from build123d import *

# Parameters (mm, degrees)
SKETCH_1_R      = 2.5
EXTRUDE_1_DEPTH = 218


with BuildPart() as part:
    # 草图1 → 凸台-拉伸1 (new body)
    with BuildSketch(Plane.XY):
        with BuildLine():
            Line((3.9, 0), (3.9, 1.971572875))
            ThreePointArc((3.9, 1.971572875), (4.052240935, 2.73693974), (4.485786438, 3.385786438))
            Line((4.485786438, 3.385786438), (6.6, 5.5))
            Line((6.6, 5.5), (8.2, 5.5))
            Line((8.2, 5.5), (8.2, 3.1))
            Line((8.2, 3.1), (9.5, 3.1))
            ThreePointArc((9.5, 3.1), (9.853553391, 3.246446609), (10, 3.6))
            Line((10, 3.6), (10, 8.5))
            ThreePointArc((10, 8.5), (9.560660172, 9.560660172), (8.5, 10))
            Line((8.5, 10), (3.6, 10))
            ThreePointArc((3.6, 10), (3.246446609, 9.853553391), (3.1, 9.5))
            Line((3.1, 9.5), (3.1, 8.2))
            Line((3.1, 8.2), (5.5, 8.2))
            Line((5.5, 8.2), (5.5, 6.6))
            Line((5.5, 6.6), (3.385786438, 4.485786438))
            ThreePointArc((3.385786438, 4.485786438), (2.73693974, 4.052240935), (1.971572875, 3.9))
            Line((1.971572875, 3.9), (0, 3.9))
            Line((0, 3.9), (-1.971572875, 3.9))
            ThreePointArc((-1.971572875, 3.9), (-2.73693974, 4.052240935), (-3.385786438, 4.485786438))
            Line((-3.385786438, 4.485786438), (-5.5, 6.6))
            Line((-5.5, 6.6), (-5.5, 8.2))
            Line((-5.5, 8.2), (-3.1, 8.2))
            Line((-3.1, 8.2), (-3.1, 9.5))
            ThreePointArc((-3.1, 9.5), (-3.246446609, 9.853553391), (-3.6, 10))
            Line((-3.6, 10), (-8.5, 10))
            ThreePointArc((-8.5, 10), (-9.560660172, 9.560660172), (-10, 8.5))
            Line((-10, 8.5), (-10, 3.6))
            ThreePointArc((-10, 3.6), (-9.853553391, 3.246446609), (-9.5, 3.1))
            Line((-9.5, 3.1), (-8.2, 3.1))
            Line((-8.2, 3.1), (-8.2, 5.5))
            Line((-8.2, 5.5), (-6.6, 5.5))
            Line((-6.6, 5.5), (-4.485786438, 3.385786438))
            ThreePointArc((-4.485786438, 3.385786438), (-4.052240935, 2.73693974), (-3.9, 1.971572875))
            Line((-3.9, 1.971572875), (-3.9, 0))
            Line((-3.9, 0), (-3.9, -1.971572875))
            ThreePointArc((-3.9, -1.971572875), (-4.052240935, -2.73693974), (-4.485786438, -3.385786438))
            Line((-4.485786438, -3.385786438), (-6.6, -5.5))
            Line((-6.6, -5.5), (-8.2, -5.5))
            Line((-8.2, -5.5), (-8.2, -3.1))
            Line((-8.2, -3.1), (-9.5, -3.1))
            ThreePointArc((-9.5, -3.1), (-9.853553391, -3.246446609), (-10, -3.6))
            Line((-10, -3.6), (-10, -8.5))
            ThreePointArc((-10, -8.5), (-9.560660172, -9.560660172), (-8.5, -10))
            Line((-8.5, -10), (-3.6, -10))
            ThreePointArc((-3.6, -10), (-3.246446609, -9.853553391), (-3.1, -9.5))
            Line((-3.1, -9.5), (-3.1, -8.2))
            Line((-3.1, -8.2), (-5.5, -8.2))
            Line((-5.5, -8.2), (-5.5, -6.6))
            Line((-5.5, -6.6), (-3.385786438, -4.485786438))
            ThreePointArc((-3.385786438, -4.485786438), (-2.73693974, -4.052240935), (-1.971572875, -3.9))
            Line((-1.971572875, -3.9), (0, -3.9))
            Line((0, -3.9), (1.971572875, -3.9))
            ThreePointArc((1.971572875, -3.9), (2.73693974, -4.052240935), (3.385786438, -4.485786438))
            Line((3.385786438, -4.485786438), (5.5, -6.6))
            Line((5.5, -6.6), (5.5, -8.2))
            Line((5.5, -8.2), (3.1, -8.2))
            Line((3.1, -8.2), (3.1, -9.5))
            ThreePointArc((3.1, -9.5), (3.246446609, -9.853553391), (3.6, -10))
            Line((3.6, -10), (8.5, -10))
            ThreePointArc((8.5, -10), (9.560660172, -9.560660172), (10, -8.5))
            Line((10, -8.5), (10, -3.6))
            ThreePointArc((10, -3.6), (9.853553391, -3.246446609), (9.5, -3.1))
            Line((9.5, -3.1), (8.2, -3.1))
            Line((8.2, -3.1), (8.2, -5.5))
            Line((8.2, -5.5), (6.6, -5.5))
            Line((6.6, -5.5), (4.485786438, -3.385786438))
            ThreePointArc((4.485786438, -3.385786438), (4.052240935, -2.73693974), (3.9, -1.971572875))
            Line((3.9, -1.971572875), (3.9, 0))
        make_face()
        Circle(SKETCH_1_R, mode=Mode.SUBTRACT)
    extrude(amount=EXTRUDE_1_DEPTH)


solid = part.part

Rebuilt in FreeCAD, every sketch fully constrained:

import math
import FreeCAD as App
import Part
import Sketcher

V = App.Vector
Q = App.Units.Quantity

doc = App.newDocument("Part")
body = doc.addObject("PartDesign::Body", "Body")

# Sketch on XY plane
sketch1 = doc.addObject("Sketcher::SketchObject", "Sketch")
body.addObject(sketch1)
sketch1.AttachmentSupport = (doc.XY_Plane, [""])
sketch1.MapMode = "FlatFace"
sketch1.addGeometry(Part.ArcOfCircle(Part.Circle(V(5.9, 1.971573, 0), V(0, 0, 1), 2), math.radians(135), math.radians(180)), False)
sketch1.addGeometry(Part.LineSegment(V(4.485786, 3.385786, 0), V(6.6, 5.5, 0)), False)
sketch1.addGeometry(Part.LineSegment(V(6.6, 5.5, 0), V(8.2, 5.5, 0)), False)
sketch1.addGeometry(Part.LineSegment(V(8.2, 5.5, 0), V(8.2, 3.1, 0)), False)
sketch1.addGeometry(Part.LineSegment(V(8.2, 3.1, 0), V(9.5, 3.1, 0)), False)
sketch1.addGeometry(Part.ArcOfCircle(Part.Circle(V(9.5, 3.6, 0), V(0, 0, 1), 0.5), math.radians(-90), math.radians(0)), False)
sketch1.addGeometry(Part.LineSegment(V(10, 3.6, 0), V(10, 8.5, 0)), False)
sketch1.addGeometry(Part.ArcOfCircle(Part.Circle(V(8.5, 8.5, 0), V(0, 0, 1), 1.5), math.radians(0), math.radians(90)), False)
sketch1.addGeometry(Part.LineSegment(V(8.5, 10, 0), V(3.6, 10, 0)), False)
sketch1.addGeometry(Part.ArcOfCircle(Part.Circle(V(3.6, 9.5, 0), V(0, 0, 1), 0.5), math.radians(90), math.radians(180)), False)
sketch1.addGeometry(Part.LineSegment(V(3.1, 9.5, 0), V(3.1, 8.2, 0)), False)
sketch1.addGeometry(Part.LineSegment(V(3.1, 8.2, 0), V(5.5, 8.2, 0)), False)
sketch1.addGeometry(Part.LineSegment(V(5.5, 8.2, 0), V(5.5, 6.6, 0)), False)
sketch1.addGeometry(Part.LineSegment(V(5.5, 6.6, 0), V(3.385786, 4.485786, 0)), False)
sketch1.addGeometry(Part.ArcOfCircle(Part.Circle(V(1.971573, 5.9, 0), V(0, 0, 1), 2), math.radians(-90), math.radians(-45)), False)
sketch1.addGeometry(Part.LineSegment(V(1.971573, 3.9, 0), V(-1.971573, 3.9, 0)), False)
sketch1.addGeometry(Part.ArcOfCircle(Part.Circle(V(-1.971573, 5.9, 0), V(0, 0, 1), 2), math.radians(-135), math.radians(-90)), False)
sketch1.addGeometry(Part.LineSegment(V(-3.385786, 4.485786, 0), V(-5.5, 6.6, 0)), False)
sketch1.addGeometry(Part.LineSegment(V(-5.5, 6.6, 0), V(-5.5, 8.2, 0)), False)
sketch1.addGeometry(Part.LineSegment(V(-5.5, 8.2, 0), V(-3.1, 8.2, 0)), False)
sketch1.addGeometry(Part.LineSegment(V(-3.1, 8.2, 0), V(-3.1, 9.5, 0)), False)
sketch1.addGeometry(Part.ArcOfCircle(Part.Circle(V(-3.6, 9.5, 0), V(0, 0, 1), 0.5), math.radians(0), math.radians(90)), False)
sketch1.addGeometry(Part.LineSegment(V(-3.6, 10, 0), V(-8.5, 10, 0)), False)
sketch1.addGeometry(Part.ArcOfCircle(Part.Circle(V(-8.5, 8.5, 0), V(0, 0, 1), 1.5), math.radians(90), math.radians(180)), False)
sketch1.addGeometry(Part.LineSegment(V(-10, 8.5, 0), V(-10, 3.6, 0)), False)
sketch1.addGeometry(Part.ArcOfCircle(Part.Circle(V(-9.5, 3.6, 0), V(0, 0, 1), 0.5), math.radians(180), math.radians(270)), False)
sketch1.addGeometry(Part.LineSegment(V(-9.5, 3.1, 0), V(-8.2, 3.1, 0)), False)
sketch1.addGeometry(Part.LineSegment(V(-8.2, 3.1, 0), V(-8.2, 5.5, 0)), False)
sketch1.addGeometry(Part.LineSegment(V(-8.2, 5.5, 0), V(-6.6, 5.5, 0)), False)
sketch1.addGeometry(Part.LineSegment(V(-6.6, 5.5, 0), V(-4.485786, 3.385786, 0)), False)
sketch1.addGeometry(Part.ArcOfCircle(Part.Circle(V(-5.9, 1.971573, 0), V(0, 0, 1), 2), math.radians(0), math.radians(45)), False)
sketch1.addGeometry(Part.LineSegment(V(-3.9, 1.971573, 0), V(-3.9, -1.971573, 0)), False)
sketch1.addGeometry(Part.ArcOfCircle(Part.Circle(V(-5.9, -1.971573, 0), V(0, 0, 1), 2), math.radians(-45), math.radians(0)), False)
sketch1.addGeometry(Part.LineSegment(V(-4.485786, -3.385786, 0), V(-6.6, -5.5, 0)), False)
sketch1.addGeometry(Part.LineSegment(V(-6.6, -5.5, 0), V(-8.2, -5.5, 0)), False)
sketch1.addGeometry(Part.LineSegment(V(-8.2, -5.5, 0), V(-8.2, -3.1, 0)), False)
sketch1.addGeometry(Part.LineSegment(V(-8.2, -3.1, 0), V(-9.5, -3.1, 0)), False)
sketch1.addGeometry(Part.ArcOfCircle(Part.Circle(V(-9.5, -3.6, 0), V(0, 0, 1), 0.5), math.radians(90), math.radians(180)), False)
sketch1.addGeometry(Part.LineSegment(V(-10, -3.6, 0), V(-10, -8.5, 0)), False)
sketch1.addGeometry(Part.ArcOfCircle(Part.Circle(V(-8.5, -8.5, 0), V(0, 0, 1), 1.5), math.radians(180), math.radians(270)), False)
sketch1.addGeometry(Part.LineSegment(V(-8.5, -10, 0), V(-3.6, -10, 0)), False)
sketch1.addGeometry(Part.ArcOfCircle(Part.Circle(V(-3.6, -9.5, 0), V(0, 0, 1), 0.5), math.radians(-90), math.radians(0)), False)
sketch1.addGeometry(Part.LineSegment(V(-3.1, -9.5, 0), V(-3.1, -8.2, 0)), False)
sketch1.addGeometry(Part.LineSegment(V(-3.1, -8.2, 0), V(-5.5, -8.2, 0)), False)
sketch1.addGeometry(Part.LineSegment(V(-5.5, -8.2, 0), V(-5.5, -6.6, 0)), False)
sketch1.addGeometry(Part.LineSegment(V(-5.5, -6.6, 0), V(-3.385786, -4.485786, 0)), False)
sketch1.addGeometry(Part.ArcOfCircle(Part.Circle(V(-1.971573, -5.9, 0), V(0, 0, 1), 2), math.radians(90), math.radians(135)), False)
sketch1.addGeometry(Part.LineSegment(V(-1.971573, -3.9, 0), V(1.971573, -3.9, 0)), False)
sketch1.addGeometry(Part.ArcOfCircle(Part.Circle(V(1.971573, -5.9, 0), V(0, 0, 1), 2), math.radians(45), math.radians(90)), False)
sketch1.addGeometry(Part.LineSegment(V(3.385786, -4.485786, 0), V(5.5, -6.6, 0)), False)
sketch1.addGeometry(Part.LineSegment(V(5.5, -6.6, 0), V(5.5, -8.2, 0)), False)
sketch1.addGeometry(Part.LineSegment(V(5.5, -8.2, 0), V(3.1, -8.2, 0)), False)
sketch1.addGeometry(Part.LineSegment(V(3.1, -8.2, 0), V(3.1, -9.5, 0)), False)
sketch1.addGeometry(Part.ArcOfCircle(Part.Circle(V(3.6, -9.5, 0), V(0, 0, 1), 0.5), math.radians(180), math.radians(270)), False)
sketch1.addGeometry(Part.LineSegment(V(3.6, -10, 0), V(8.5, -10, 0)), False)
sketch1.addGeometry(Part.ArcOfCircle(Part.Circle(V(8.5, -8.5, 0), V(0, 0, 1), 1.5), math.radians(-90), math.radians(0)), False)
sketch1.addGeometry(Part.LineSegment(V(10, -8.5, 0), V(10, -3.6, 0)), False)
sketch1.addGeometry(Part.ArcOfCircle(Part.Circle(V(9.5, -3.6, 0), V(0, 0, 1), 0.5), math.radians(0), math.radians(90)), False)
sketch1.addGeometry(Part.LineSegment(V(9.5, -3.1, 0), V(8.2, -3.1, 0)), False)
sketch1.addGeometry(Part.LineSegment(V(8.2, -3.1, 0), V(8.2, -5.5, 0)), False)
sketch1.addGeometry(Part.LineSegment(V(8.2, -5.5, 0), V(6.6, -5.5, 0)), False)
sketch1.addGeometry(Part.LineSegment(V(6.6, -5.5, 0), V(4.485786, -3.385786, 0)), False)
sketch1.addGeometry(Part.ArcOfCircle(Part.Circle(V(5.9, -1.971573, 0), V(0, 0, 1), 2), math.radians(180), math.radians(225)), False)
sketch1.addGeometry(Part.LineSegment(V(3.9, -1.971573, 0), V(3.9, 1.971573, 0)), False)
sketch1.addGeometry(Part.Circle(V(0, 0, 0), V(0, 0, 1), 2.5), False)
sketch1.addConstraint(Sketcher.Constraint("Tangent", 0, 1, 1, 1))
sketch1.addConstraint(Sketcher.Constraint("Coincident", 1, 2, 2, 1))
sketch1.addConstraint(Sketcher.Constraint("Coincident", 2, 2, 3, 1))
sketch1.addConstraint(Sketcher.Constraint("Coincident", 3, 2, 4, 1))
sketch1.addConstraint(Sketcher.Constraint("Tangent", 4, 2, 5, 1))
sketch1.addConstraint(Sketcher.Constraint("Tangent", 5, 2, 6, 1))
sketch1.addConstraint(Sketcher.Constraint("Tangent", 6, 2, 7, 1))
sketch1.addConstraint(Sketcher.Constraint("Tangent", 7, 2, 8, 1))
sketch1.addConstraint(Sketcher.Constraint("Tangent", 8, 2, 9, 1))
sketch1.addConstraint(Sketcher.Constraint("Tangent", 9, 2, 10, 1))
sketch1.addConstraint(Sketcher.Constraint("Coincident", 10, 2, 11, 1))
sketch1.addConstraint(Sketcher.Constraint("Coincident", 11, 2, 12, 1))
sketch1.addConstraint(Sketcher.Constraint("Coincident", 12, 2, 13, 1))
sketch1.addConstraint(Sketcher.Constraint("Tangent", 13, 2, 14, 2))
sketch1.addConstraint(Sketcher.Constraint("Tangent", 14, 1, 15, 1))
sketch1.addConstraint(Sketcher.Constraint("Tangent", 15, 2, 16, 2))
sketch1.addConstraint(Sketcher.Constraint("Tangent", 16, 1, 17, 1))
sketch1.addConstraint(Sketcher.Constraint("Coincident", 17, 2, 18, 1))
sketch1.addConstraint(Sketcher.Constraint("Coincident", 18, 2, 19, 1))
sketch1.addConstraint(Sketcher.Constraint("Coincident", 19, 2, 20, 1))
sketch1.addConstraint(Sketcher.Constraint("Tangent", 20, 2, 21, 1))
sketch1.addConstraint(Sketcher.Constraint("Tangent", 21, 2, 22, 1))
sketch1.addConstraint(Sketcher.Constraint("Tangent", 22, 2, 23, 1))
sketch1.addConstraint(Sketcher.Constraint("Tangent", 23, 2, 24, 1))
sketch1.addConstraint(Sketcher.Constraint("Tangent", 24, 2, 25, 1))
sketch1.addConstraint(Sketcher.Constraint("Tangent", 25, 2, 26, 1))
sketch1.addConstraint(Sketcher.Constraint("Coincident", 26, 2, 27, 1))
sketch1.addConstraint(Sketcher.Constraint("Coincident", 27, 2, 28, 1))
sketch1.addConstraint(Sketcher.Constraint("Coincident", 28, 2, 29, 1))
sketch1.addConstraint(Sketcher.Constraint("Tangent", 29, 2, 30, 2))
sketch1.addConstraint(Sketcher.Constraint("Tangent", 30, 1, 31, 1))
sketch1.addConstraint(Sketcher.Constraint("Tangent", 31, 2, 32, 2))
sketch1.addConstraint(Sketcher.Constraint("Tangent", 32, 1, 33, 1))
sketch1.addConstraint(Sketcher.Constraint("Coincident", 33, 2, 34, 1))
sketch1.addConstraint(Sketcher.Constraint("Coincident", 34, 2, 35, 1))
sketch1.addConstraint(Sketcher.Constraint("Coincident", 35, 2, 36, 1))
sketch1.addConstraint(Sketcher.Constraint("Tangent", 36, 2, 37, 1))
sketch1.addConstraint(Sketcher.Constraint("Tangent", 37, 2, 38, 1))
sketch1.addConstraint(Sketcher.Constraint("Tangent", 38, 2, 39, 1))
sketch1.addConstraint(Sketcher.Constraint("Tangent", 39, 2, 40, 1))
sketch1.addConstraint(Sketcher.Constraint("Tangent", 40, 2, 41, 1))
sketch1.addConstraint(Sketcher.Constraint("Tangent", 41, 2, 42, 1))
sketch1.addConstraint(Sketcher.Constraint("Coincident", 42, 2, 43, 1))
sketch1.addConstraint(Sketcher.Constraint("Coincident", 43, 2, 44, 1))
sketch1.addConstraint(Sketcher.Constraint("Coincident", 44, 2, 45, 1))
sketch1.addConstraint(Sketcher.Constraint("Tangent", 45, 2, 46, 2))
sketch1.addConstraint(Sketcher.Constraint("Tangent", 46, 1, 47, 1))
sketch1.addConstraint(Sketcher.Constraint("Tangent", 47, 2, 48, 2))
sketch1.addConstraint(Sketcher.Constraint("Tangent", 48, 1, 49, 1))
sketch1.addConstraint(Sketcher.Constraint("Coincident", 49, 2, 50, 1))
sketch1.addConstraint(Sketcher.Constraint("Coincident", 50, 2, 51, 1))
sketch1.addConstraint(Sketcher.Constraint("Coincident", 51, 2, 52, 1))
sketch1.addConstraint(Sketcher.Constraint("Tangent", 52, 2, 53, 1))
sketch1.addConstraint(Sketcher.Constraint("Tangent", 53, 2, 54, 1))
sketch1.addConstraint(Sketcher.Constraint("Tangent", 54, 2, 55, 1))
sketch1.addConstraint(Sketcher.Constraint("Tangent", 55, 2, 56, 1))
sketch1.addConstraint(Sketcher.Constraint("Tangent", 56, 2, 57, 1))
sketch1.addConstraint(Sketcher.Constraint("Tangent", 57, 2, 58, 1))
sketch1.addConstraint(Sketcher.Constraint("Coincident", 58, 2, 59, 1))
sketch1.addConstraint(Sketcher.Constraint("Coincident", 59, 2, 60, 1))
sketch1.addConstraint(Sketcher.Constraint("Coincident", 60, 2, 61, 1))
sketch1.addConstraint(Sketcher.Constraint("Tangent", 61, 2, 62, 2))
sketch1.addConstraint(Sketcher.Constraint("Tangent", 62, 1, 63, 1))
sketch1.addConstraint(Sketcher.Constraint("Tangent", 63, 2, 0, 2))
sketch1.addConstraint(Sketcher.Constraint("Horizontal", 2))
sketch1.addConstraint(Sketcher.Constraint("Vertical", 3))
sketch1.addConstraint(Sketcher.Constraint("Horizontal", 4))
sketch1.addConstraint(Sketcher.Constraint("Vertical", 6))
sketch1.addConstraint(Sketcher.Constraint("Horizontal", 8))
sketch1.addConstraint(Sketcher.Constraint("Vertical", 10))
sketch1.addConstraint(Sketcher.Constraint("Horizontal", 11))
sketch1.addConstraint(Sketcher.Constraint("Vertical", 12))
sketch1.addConstraint(Sketcher.Constraint("Horizontal", 15))
sketch1.addConstraint(Sketcher.Constraint("Vertical", 18))
sketch1.addConstraint(Sketcher.Constraint("Horizontal", 19))
sketch1.addConstraint(Sketcher.Constraint("Vertical", 20))
sketch1.addConstraint(Sketcher.Constraint("Horizontal", 22))
sketch1.addConstraint(Sketcher.Constraint("Vertical", 24))
sketch1.addConstraint(Sketcher.Constraint("Horizontal", 26))
sketch1.addConstraint(Sketcher.Constraint("Vertical", 27))
sketch1.addConstraint(Sketcher.Constraint("Horizontal", 28))
sketch1.addConstraint(Sketcher.Constraint("Vertical", 31))
sketch1.addConstraint(Sketcher.Constraint("Horizontal", 34))
sketch1.addConstraint(Sketcher.Constraint("Vertical", 35))
sketch1.addConstraint(Sketcher.Constraint("Horizontal", 36))
sketch1.addConstraint(Sketcher.Constraint("Vertical", 38))
sketch1.addConstraint(Sketcher.Constraint("Horizontal", 40))
sketch1.addConstraint(Sketcher.Constraint("Vertical", 42))
sketch1.addConstraint(Sketcher.Constraint("Horizontal", 43))
sketch1.addConstraint(Sketcher.Constraint("Vertical", 44))
sketch1.addConstraint(Sketcher.Constraint("Horizontal", 47))
sketch1.addConstraint(Sketcher.Constraint("Vertical", 50))
sketch1.addConstraint(Sketcher.Constraint("Horizontal", 51))
sketch1.addConstraint(Sketcher.Constraint("Vertical", 52))
sketch1.addConstraint(Sketcher.Constraint("Horizontal", 54))
sketch1.addConstraint(Sketcher.Constraint("Vertical", 56))
sketch1.addConstraint(Sketcher.Constraint("Horizontal", 58))
sketch1.addConstraint(Sketcher.Constraint("Vertical", 59))
sketch1.addConstraint(Sketcher.Constraint("Horizontal", 60))
sketch1.addConstraint(Sketcher.Constraint("Vertical", 63))
sketch1.addConstraint(Sketcher.Constraint("Coincident", 64, 3, -1, 1))
sketch1.addConstraint(Sketcher.Constraint("Equal", 5, 9))
sketch1.addConstraint(Sketcher.Constraint("Equal", 0, 14))
sketch1.addConstraint(Sketcher.Constraint("Equal", 14, 16))
sketch1.addConstraint(Sketcher.Constraint("Equal", 9, 21))
sketch1.addConstraint(Sketcher.Constraint("Equal", 7, 23))
sketch1.addConstraint(Sketcher.Constraint("Equal", 21, 25))
sketch1.addConstraint(Sketcher.Constraint("Equal", 16, 30))
sketch1.addConstraint(Sketcher.Constraint("Equal", 30, 32))
sketch1.addConstraint(Sketcher.Constraint("Equal", 25, 37))
sketch1.addConstraint(Sketcher.Constraint("Equal", 23, 39))
sketch1.addConstraint(Sketcher.Constraint("Equal", 37, 41))
sketch1.addConstraint(Sketcher.Constraint("Equal", 32, 46))
sketch1.addConstraint(Sketcher.Constraint("Equal", 46, 48))
sketch1.addConstraint(Sketcher.Constraint("Equal", 41, 53))
sketch1.addConstraint(Sketcher.Constraint("Equal", 39, 55))
sketch1.addConstraint(Sketcher.Constraint("Equal", 53, 57))
sketch1.addConstraint(Sketcher.Constraint("Equal", 48, 62))
sketch1.addConstraint(Sketcher.Constraint("Symmetric", 0, 3, 32, 3, -1, 1))
sketch1.addConstraint(Sketcher.Constraint("Symmetric", 5, 3, 37, 3, -1, 1))
sketch1.addConstraint(Sketcher.Constraint("Symmetric", 9, 3, 41, 3, -1, 1))
sketch1.addConstraint(Sketcher.Constraint("Symmetric", 14, 3, 46, 3, -1, 1))
sketch1.addConstraint(Sketcher.Constraint("Symmetric", 21, 3, 53, 3, -1, 1))
sketch1.addConstraint(Sketcher.Constraint("Symmetric", 25, 3, 57, 3, -1, 1))
sketch1.addConstraint(Sketcher.Constraint("Symmetric", 1, 2, 33, 2, -1, 1))
sketch1.addConstraint(Sketcher.Constraint("Symmetric", 11, 2, 43, 2, -1, 1))
sketch1.addConstraint(Sketcher.Constraint("Symmetric", 16, 1, 48, 1, -1, 1))
sketch1.addConstraint(Sketcher.Constraint("Symmetric", 18, 2, 50, 2, -1, 1))
sketch1.addConstraint(Sketcher.Constraint("Symmetric", 27, 2, 59, 2, -1, 1))
sketch1.addConstraint(Sketcher.Constraint("Symmetric", 29, 2, 61, 2, -1, 1))
sketch1.addConstraint(Sketcher.Constraint("Symmetric", 9, 3, 21, 3, -2))
sketch1.addConstraint(Sketcher.Constraint("Symmetric", 5, 3, 25, 3, -2))
sketch1.addConstraint(Sketcher.Constraint("Symmetric", 13, 2, 16, 1, -2))
sketch1.addConstraint(Sketcher.Constraint("Symmetric", 11, 2, 18, 2, -2))
sketch1.addConstraint(Sketcher.Constraint("Symmetric", 2, 2, 27, 2, -2))
sketch1.addConstraint(Sketcher.Constraint("Symmetric", 0, 1, 29, 2, -2))
sketch1.addConstraint(Sketcher.Constraint("Parallel", 1, 13))
sketch1.addConstraint(Sketcher.Constraint("Perpendicular", 13, 17))
sketch1.addConstraint(Sketcher.Constraint("Parallel", 33, 45))
sketch1.addConstraint(Sketcher.Constraint("Vertical", 27, 2, 34, 2))
sketch1.addConstraint(Sketcher.Constraint("Equal", 51, 3))
sketch1.addConstraint(Sketcher.Constraint("Equal", 54, 6))
sketch1.addConstraint(Sketcher.Constraint("Equal", 58, 10))
sketch1.addConstraint(Sketcher.Constraint("Equal", 60, 12))
sketch1.addConstraint(Sketcher.Constraint("Equal", 47, 31))
sketch1.addConstraint(Sketcher.Constraint("Equal", 1, 13))
sketch1.addConstraint(Sketcher.Constraint("Diameter", 64, Q("5 mm")))
sketch1.addConstraint(Sketcher.Constraint("Radius", 0, Q("2 mm")))
sketch1.addConstraint(Sketcher.Constraint("Radius", 5, Q("0.5 mm")))
sketch1.addConstraint(Sketcher.Constraint("Radius", 7, Q("1.5 mm")))
sketch1.addConstraint(Sketcher.Constraint("DistanceX", 2, 1, 2, 2, Q("1.6 mm")))
sketch1.addConstraint(Sketcher.Constraint("DistanceX", 4, 1, 4, 2, Q("1.3 mm")))
sketch1.addConstraint(Sketcher.Constraint("DistanceX", 8, 2, 8, 1, Q("4.9 mm")))
sketch1.addConstraint(Sketcher.Constraint("DistanceX", 11, 1, 11, 2, Q("2.4 mm")))
sketch1.addConstraint(Sketcher.Constraint("DistanceX", -1, 1, 5, 2, Q("10 mm")))
sketch1.addConstraint(Sketcher.Constraint("DistanceX", -1, 1, 0, 3, Q("5.9 mm")))
pad1 = doc.addObject("PartDesign::Pad", "Pad")
body.addObject(pad1)
pad1.Profile = sketch1
pad1.Length = 218

doc.recompute()
